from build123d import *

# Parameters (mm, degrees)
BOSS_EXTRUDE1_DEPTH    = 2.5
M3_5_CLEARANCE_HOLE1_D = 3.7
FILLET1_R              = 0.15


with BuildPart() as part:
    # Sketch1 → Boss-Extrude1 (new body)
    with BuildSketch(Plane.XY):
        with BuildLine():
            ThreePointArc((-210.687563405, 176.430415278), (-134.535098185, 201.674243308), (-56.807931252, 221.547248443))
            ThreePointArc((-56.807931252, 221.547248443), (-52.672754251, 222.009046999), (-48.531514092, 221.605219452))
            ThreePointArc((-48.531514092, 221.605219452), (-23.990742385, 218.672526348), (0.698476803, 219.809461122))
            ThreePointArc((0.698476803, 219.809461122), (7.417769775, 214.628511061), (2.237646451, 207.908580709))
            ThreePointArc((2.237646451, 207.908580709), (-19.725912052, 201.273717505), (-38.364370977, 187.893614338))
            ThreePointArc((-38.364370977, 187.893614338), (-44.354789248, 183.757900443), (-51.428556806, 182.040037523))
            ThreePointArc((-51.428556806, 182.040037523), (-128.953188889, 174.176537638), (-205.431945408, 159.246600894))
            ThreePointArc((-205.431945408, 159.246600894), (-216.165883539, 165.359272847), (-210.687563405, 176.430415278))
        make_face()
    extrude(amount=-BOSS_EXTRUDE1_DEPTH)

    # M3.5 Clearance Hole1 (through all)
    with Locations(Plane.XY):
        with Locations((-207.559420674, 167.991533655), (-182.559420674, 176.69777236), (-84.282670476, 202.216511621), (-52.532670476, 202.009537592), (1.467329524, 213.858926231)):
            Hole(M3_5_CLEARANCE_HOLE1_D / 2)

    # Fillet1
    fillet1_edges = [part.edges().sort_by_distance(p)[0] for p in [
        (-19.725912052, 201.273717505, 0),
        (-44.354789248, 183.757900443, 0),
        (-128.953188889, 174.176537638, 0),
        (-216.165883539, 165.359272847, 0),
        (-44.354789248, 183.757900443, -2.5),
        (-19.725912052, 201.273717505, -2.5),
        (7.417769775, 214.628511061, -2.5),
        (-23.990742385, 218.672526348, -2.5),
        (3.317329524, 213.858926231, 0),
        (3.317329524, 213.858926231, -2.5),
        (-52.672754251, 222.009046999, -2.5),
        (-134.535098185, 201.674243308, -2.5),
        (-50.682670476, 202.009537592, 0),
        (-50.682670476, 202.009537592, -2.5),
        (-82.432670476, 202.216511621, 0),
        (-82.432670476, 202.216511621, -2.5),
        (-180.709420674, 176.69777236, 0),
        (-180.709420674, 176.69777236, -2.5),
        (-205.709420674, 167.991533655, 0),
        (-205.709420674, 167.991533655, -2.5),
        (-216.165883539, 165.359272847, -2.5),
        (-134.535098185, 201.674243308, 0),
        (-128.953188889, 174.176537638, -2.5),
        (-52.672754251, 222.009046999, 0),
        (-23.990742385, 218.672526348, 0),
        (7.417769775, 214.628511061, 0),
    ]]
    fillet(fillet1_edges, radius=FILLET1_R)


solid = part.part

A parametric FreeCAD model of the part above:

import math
import FreeCAD as App
import Part
import Sketcher
Q = App.Units.Quantity


def edges_at(feature, points):
    """Names of the edges that pass closest to the given points."""
    edges = feature.Shape.Edges
    near = lambda p: min(range(len(edges)), key=lambda i: edges[i].distToShape(Part.Vertex(*p))[0])
    return sorted({f"Edge{near(p) + 1}" for p in points})

doc = App.newDocument("Part")
params = doc.addObject("Spreadsheet::Sheet", "Params")
for row, (alias, value) in enumerate([
    ("sketch1_radius", "1150 mm"),
    ("sketch1_radius2", "9 mm"),
    ("sketch1_radius3", "850 mm"),
    ("sketch1_radius4", "20 mm"),
    ("sketch1_radius5", "70 mm"),
    ("pad1_length", "2.5 mm"),
    ("sketch2_diameter", "3.7 mm"),
    ("hole_diameter", "3.7 mm"),
    ("fillet_radius", "0.15 mm"),
], start=1):
    params.set(f"A{row}", alias)
    params.set(f"B{row}", "=" + value)
    params.setAlias(f"B{row}", alias)

body = doc.addObject("PartDesign::Body", "Body")

# Sketch on XY plane
sketch1 = body.newObject("Sketcher::SketchObject", "Sketch")
sketch1.AttachmentSupport = (doc.getObject("XY_Plane"), [""])
sketch1.MapMode = "FlatFace"
sketch1.addGeometry(Part.ArcOfCircle(Part.Circle(App.Vector(189, -902, 0), App.Vector(0, 0, 1), 1150), math.radians(102.34), math.radians(110.34)), False)
sketch1.addGeometry(Part.ArcOfCircle(Part.Circle(App.Vector(-208, 168, 0), App.Vector(0, 0, 1), 9), math.radians(110), math.radians(284)), False)
sketch1.addGeometry(Part.ArcOfCircle(Part.Circle(App.Vector(-5, -667, 0), App.Vector(0, 0, 1), 850), math.radians(93.16), math.radians(103.67)), False)
sketch1.addGeometry(Part.ArcOfCircle(Part.Circle(App.Vector(-53, 202, 0), App.Vector(0, 0, 1), 20), math.radians(-87), math.radians(-45)), False)
sketch1.addGeometry(Part.ArcOfCircle(Part.Circle(App.Vector(11, 138, 0), App.Vector(0, 0, 1), 70), math.radians(97), math.radians(135)), False)
sketch1.addGeometry(Part.ArcOfCircle(Part.Circle(App.Vector(1, 214, 0), App.Vector(0, 0, 1), 6), math.radians(-83), math.radians(97)), False)
sketch1.addGeometry(Part.ArcOfCircle(Part.Circle(App.Vector(-19, 369, 0), App.Vector(0, 0, 1), 150), math.radians(-101.54), math.radians(-82.64)), False)
sketch1.addGeometry(Part.ArcOfCircle(Part.Circle(App.Vector(-53, 202, 0), App.Vector(0, 0, 1), 20), math.radians(78), math.radians(102)), False)
sketch1.addConstraint(Sketcher.Constraint("Tangent", 0, 2, 1, 1))
sketch1.addConstraint(Sketcher.Constraint("Tangent", 1, 2, 2, 2))
sketch1.addConstraint(Sketcher.Constraint("Tangent", 2, 1, 3, 1))
sketch1.addConstraint(Sketcher.Constraint("Tangent", 3, 2, 4, 2))
sketch1.addConstraint(Sketcher.Constraint("Tangent", 4, 1, 5, 1))
sketch1.addConstraint(Sketcher.Constraint("Tangent", 5, 2, 6, 2))
sketch1.addConstraint(Sketcher.Constraint("Tangent", 6, 1, 7, 1))
sketch1.addConstraint(Sketcher.Constraint("Tangent", 7, 2, 0, 1))
sketch1.addConstraint(Sketcher.Constraint("Coincident", 7, 3, 3, 3))
sketch1.addConstraint(Sketcher.Constraint("Equal", 3, 7))
sketch1.addConstraint(Sketcher.Constraint("Radius", 0, Q("1150 mm")))
sketch1.addConstraint(Sketcher.Constraint("Radius", 1, Q("9 mm")))
sketch1.addConstraint(Sketcher.Constraint("Radius", 2, Q("850 mm")))
sketch1.addConstraint(Sketcher.Constraint("Radius", 3, Q("20 mm")))
sketch1.addConstraint(Sketcher.Constraint("Radius", 4, Q("70 mm")))
sketch1.addConstraint(Sketcher.Constraint("Radius", 5, Q("6 mm")))
sketch1.addConstraint(Sketcher.Constraint("Radius", 6, Q("150 mm")))
sketch1.addConstraint(Sketcher.Constraint("DistanceX", 3, 3, 5, 3, Q("54 mm")))
sketch1.addConstraint(Sketcher.Constraint("DistanceY", -1, 1, 1, 2, Q("159.246601 mm")))
sketch1.addConstraint(Sketcher.Constraint("DistanceY", 2, 3, 4, 3, Q("805.151598 mm")))
sketch1.addConstraint(Sketcher.Constraint("DistanceY", 1, 3, 6, 3, Q("200.5813 mm")))
sketch1.addConstraint(Sketcher.Constraint("DistanceX", 1, 3, -1, 1, Q("207.559421 mm")))
sketch1.addConstraint(Sketcher.Constraint("DistanceX", 3, 3, -1, 1, Q("52.53267 mm")))
sketch1.setExpression("Constraints[10]", "Params.sketch1_radius")
sketch1.setExpression("Constraints[11]", "Params.sketch1_radius2")
sketch1.setExpression("Constraints[12]", "Params.sketch1_radius3")
sketch1.setExpression("Constraints[13]", "Params.sketch1_radius4")
sketch1.setExpression("Constraints[14]", "Params.sketch1_radius5")
pad1 = body.newObject("PartDesign::Pad", "Pad")
pad1.Profile = sketch1
pad1.setExpression("Length", "Params.pad1_length")
pad1.Reversed = True

# Sketch on XY plane
sketch2 = body.newObject("Sketcher::SketchObject", "Sketch001")
sketch2.AttachmentSupport = (doc.getObject("XY_Plane"), [""])
sketch2.MapMode = "FlatFace"
sketch2.addGeometry(Part.Circle(App.Vector(-207.6, 168, 0), App.Vector(0, 0, 1), 1.9), False)
sketch2.addGeometry(Part.Circle(App.Vector(-182.6, 176.7, 0), App.Vector(0, 0, 1), 1.9), False)
sketch2.addGeometry(Part.Circle(App.Vector(-84.3, 202.2, 0), App.Vector(0, 0, 1), 1.9), False)
sketch2.addGeometry(Part.Circle(App.Vector(-52.5, 202, 0), App.Vector(0, 0, 1), 1.9), False)
sketch2.addGeometry(Part.Circle(App.Vector(1.5, 213.9, 0), App.Vector(0, 0, 1), 1.9), False)
sketch2.addConstraint(Sketcher.Constraint("Equal", 0, 1))
sketch2.addConstraint(Sketcher.Constraint("Equal", 1, 2))
sketch2.addConstraint(Sketcher.Constraint("Equal", 2, 3))
sketch2.addConstraint(Sketcher.Constraint("Equal", 3, 4))
sketch2.addConstraint(Sketcher.Constraint("Diameter", 0, Q("3.7 mm")))
sketch2.addConstraint(Sketcher.Constraint("DistanceX", 0, 3, 1, 3, Q("25 mm")))
sketch2.addConstraint(Sketcher.Constraint("DistanceX", 3, 3, 4, 3, Q("54 mm")))
sketch2.addConstraint(Sketcher.Constraint("DistanceX", 2, 3, 3, 3, Q("31.75 mm")))
sketch2.addConstraint(Sketcher.Constraint("DistanceX", 0, 3, -1, 1, Q("207.559421 mm")))
sketch2.addConstraint(Sketcher.Constraint("DistanceX", 2, 3, -1, 1, Q("84.28267 mm")))
sketch2.addConstraint(Sketcher.Constraint("DistanceY", -1, 1, 2, 3, Q("202.216512 mm")))
sketch2.addConstraint(Sketcher.Constraint("DistanceY", 0, 3, 1, 3, Q("8.706239 mm")))
sketch2.addConstraint(Sketcher.Constraint("DistanceY", 1, 3, 2, 3, Q("25.518739 mm")))
sketch2.addConstraint(Sketcher.Constraint("DistanceY", 3, 3, 4, 3, Q("11.849389 mm")))
sketch2.addConstraint(Sketcher.Constraint("DistanceY", -1, 1, 3, 3, Q("202.009538 mm")))
sketch2.setExpression("Constraints[4]", "Params.sketch2_diameter")
doc.recompute()
hole = body.newObject("PartDesign::Hole", "Hole")
hole.Profile = sketch2
hole.ThreadType = "None"
hole.setExpression("Diameter", "Params.hole_diameter")
hole.DepthType = "ThroughAll"
doc.recompute()

fillet = body.newObject("PartDesign::Fillet", "Fillet")
fillet.Base = (hole, edges_at(hole, [
    (-19.726, 201.274, 0),
    (-44.355, 183.758, 0),
    (-128.953, 174.177, 0),
    (-216.166, 165.359, 0),
    (-44.355, 183.758, -2.5),
    (-19.726, 201.274, -2.5),
    (7.418, 214.629, -2.5),
    (-23.991, 218.673, -2.5),
    (3.317, 213.859, 0),
    (3.317, 213.859, -2.5),
    (-52.673, 222.009, -2.5),
    (-134.535, 201.674, -2.5),
    (-50.683, 202.01, 0),
    (-50.683, 202.01, -2.5),
    (-82.433, 202.217, 0),
    (-82.433, 202.217, -2.5),
    (-180.709, 176.698, 0),
    (-180.709, 176.698, -2.5),
    (-205.709, 167.992, 0),
    (-205.709, 167.992, -2.5),
    (-216.166, 165.359, -2.5),
    (-134.535, 201.674, 0),
    (-128.953, 174.177, -2.5),
    (-52.673, 222.009, 0),
    (-23.991, 218.673, 0),
    (7.418, 214.629, 0),
]))
fillet.setExpression("Radius", "Params.fillet_radius")

doc.recompute()
